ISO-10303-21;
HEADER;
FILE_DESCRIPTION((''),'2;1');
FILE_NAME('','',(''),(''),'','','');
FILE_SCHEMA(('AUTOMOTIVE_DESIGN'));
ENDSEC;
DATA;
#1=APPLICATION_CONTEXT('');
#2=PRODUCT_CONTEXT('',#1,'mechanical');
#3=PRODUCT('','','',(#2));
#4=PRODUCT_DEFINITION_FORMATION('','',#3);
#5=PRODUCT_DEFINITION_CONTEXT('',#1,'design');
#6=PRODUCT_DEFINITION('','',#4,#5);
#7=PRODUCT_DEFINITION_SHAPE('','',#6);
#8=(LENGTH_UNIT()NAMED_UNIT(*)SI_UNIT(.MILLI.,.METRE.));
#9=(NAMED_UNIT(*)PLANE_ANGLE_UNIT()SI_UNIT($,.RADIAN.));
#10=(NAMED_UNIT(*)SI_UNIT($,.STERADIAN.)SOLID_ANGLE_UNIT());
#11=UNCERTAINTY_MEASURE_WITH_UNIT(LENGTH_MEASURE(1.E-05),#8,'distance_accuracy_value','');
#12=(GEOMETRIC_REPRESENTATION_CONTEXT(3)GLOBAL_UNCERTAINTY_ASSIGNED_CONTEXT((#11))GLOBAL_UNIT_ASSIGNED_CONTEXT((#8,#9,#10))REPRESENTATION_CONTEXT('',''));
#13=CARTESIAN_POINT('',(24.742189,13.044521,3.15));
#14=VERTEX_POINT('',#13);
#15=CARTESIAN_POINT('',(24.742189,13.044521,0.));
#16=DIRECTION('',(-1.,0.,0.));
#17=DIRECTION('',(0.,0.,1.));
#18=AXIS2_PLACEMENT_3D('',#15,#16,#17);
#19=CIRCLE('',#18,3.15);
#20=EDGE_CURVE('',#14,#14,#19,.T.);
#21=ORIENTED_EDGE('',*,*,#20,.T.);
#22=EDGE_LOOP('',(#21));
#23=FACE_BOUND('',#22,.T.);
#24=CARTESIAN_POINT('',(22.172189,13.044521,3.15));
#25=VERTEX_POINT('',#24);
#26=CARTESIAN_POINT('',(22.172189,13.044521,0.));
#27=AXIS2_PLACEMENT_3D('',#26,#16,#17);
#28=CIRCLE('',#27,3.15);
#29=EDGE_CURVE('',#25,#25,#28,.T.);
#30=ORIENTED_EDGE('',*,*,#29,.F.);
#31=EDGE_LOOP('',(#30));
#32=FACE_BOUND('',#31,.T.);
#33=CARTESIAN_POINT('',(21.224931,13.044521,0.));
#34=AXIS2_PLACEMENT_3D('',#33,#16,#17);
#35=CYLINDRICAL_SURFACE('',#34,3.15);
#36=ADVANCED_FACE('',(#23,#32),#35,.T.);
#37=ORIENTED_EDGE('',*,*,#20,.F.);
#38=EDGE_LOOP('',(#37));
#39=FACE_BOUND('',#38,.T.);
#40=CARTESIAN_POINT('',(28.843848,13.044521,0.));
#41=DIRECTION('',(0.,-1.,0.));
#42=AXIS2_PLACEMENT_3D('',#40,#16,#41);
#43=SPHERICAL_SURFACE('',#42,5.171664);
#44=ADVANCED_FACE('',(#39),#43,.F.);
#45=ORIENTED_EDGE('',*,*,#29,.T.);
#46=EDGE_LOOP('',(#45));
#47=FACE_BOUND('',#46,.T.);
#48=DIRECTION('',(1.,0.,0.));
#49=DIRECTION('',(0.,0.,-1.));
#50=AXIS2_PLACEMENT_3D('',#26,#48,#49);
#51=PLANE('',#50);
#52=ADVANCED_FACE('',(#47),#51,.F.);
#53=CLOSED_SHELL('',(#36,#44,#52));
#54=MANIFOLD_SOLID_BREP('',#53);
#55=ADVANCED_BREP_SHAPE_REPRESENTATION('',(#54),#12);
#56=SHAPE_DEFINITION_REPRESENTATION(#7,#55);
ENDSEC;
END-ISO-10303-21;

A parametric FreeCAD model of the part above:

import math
import FreeCAD as App
import Part
import Sketcher
Q = App.Units.Quantity

doc = App.newDocument("Part")
params = doc.addObject("Spreadsheet::Sheet", "Params")
for row, (alias, value) in enumerate([
    ("sketch1_width", "2.57 mm"),
    ("sketch1_height", "3.15 mm"),
    ("revolution_angle", "360 deg"),
], start=1):
    params.set(f"A{row}", alias)
    params.set(f"B{row}", "=" + value)
    params.setAlias(f"B{row}", alias)

body = doc.addObject("PartDesign::Body", "Body")

# Sketch on XY plane
sketch1 = doc.addObject("Sketcher::SketchObject", "Sketch")
body.addObject(sketch1)
sketch1.AttachmentSupport = (doc.XY_Plane, [""])
sketch1.MapMode = "FlatFace"
sketch1.addGeometry([
    Part.LineSegment(App.Vector(22.2, 16.2, 0), App.Vector(22.2, 13, 0)),
    Part.LineSegment(App.Vector(22.2, 13, 0), App.Vector(23.7, 13, 0)),
    Part.ArcOfCircle(Part.Circle(App.Vector(28.8, 13, 0), App.Vector(0, 0, 1), 5.2), math.radians(142), math.radians(180)),
    Part.LineSegment(App.Vector(24.7, 16.2, 0), App.Vector(22.2, 16.2, 0)),
], False)
sketch1.addGeometry(Part.LineSegment(App.Vector(22.2, 13, 0), App.Vector(28.8, 13, 0)), True)  # axis
sketch1.addConstraint([
    Sketcher.Constraint("Coincident", 0, 2, 1, 1),
    Sketcher.Constraint("Coincident", 1, 2, 2, 2),
    Sketcher.Constraint("Coincident", 2, 1, 3, 1),
    Sketcher.Constraint("Coincident", 3, 2, 0, 1),
    Sketcher.Constraint("Vertical", 0),
    Sketcher.Constraint("Horizontal", 1),
    Sketcher.Constraint("Horizontal", 3),
    Sketcher.Constraint("Horizontal", 4),
    Sketcher.Constraint("Coincident", 4, 1, 0, 2),
    Sketcher.Constraint("Coincident", 4, 2, 2, 3),
    Sketcher.Constraint("DistanceX", 3, 2, 3, 1, Q("2.57 mm")),
    Sketcher.Constraint("DistanceY", 0, 2, 0, 1, Q("3.15 mm")),
    Sketcher.Constraint("Radius", 2, Q("5.171664 mm")),
    Sketcher.Constraint("DistanceX", -1, 1, 2, 3, Q("28.843848 mm")),
    Sketcher.Constraint("DistanceY", -1, 1, 2, 3, Q("13.044521 mm")),
])
sketch1.setExpression("Constraints[10]", "Params.sketch1_width")
sketch1.setExpression("Constraints[11]", "Params.sketch1_height")
revolution = doc.addObject("PartDesign::Revolution", "Revolution")
body.addObject(revolution)
revolution.Profile = sketch1
revolution.ReferenceAxis = (sketch1, ["Axis0"])
revolution.setExpression("Angle", "Params.revolution_angle")

doc.recompute()
